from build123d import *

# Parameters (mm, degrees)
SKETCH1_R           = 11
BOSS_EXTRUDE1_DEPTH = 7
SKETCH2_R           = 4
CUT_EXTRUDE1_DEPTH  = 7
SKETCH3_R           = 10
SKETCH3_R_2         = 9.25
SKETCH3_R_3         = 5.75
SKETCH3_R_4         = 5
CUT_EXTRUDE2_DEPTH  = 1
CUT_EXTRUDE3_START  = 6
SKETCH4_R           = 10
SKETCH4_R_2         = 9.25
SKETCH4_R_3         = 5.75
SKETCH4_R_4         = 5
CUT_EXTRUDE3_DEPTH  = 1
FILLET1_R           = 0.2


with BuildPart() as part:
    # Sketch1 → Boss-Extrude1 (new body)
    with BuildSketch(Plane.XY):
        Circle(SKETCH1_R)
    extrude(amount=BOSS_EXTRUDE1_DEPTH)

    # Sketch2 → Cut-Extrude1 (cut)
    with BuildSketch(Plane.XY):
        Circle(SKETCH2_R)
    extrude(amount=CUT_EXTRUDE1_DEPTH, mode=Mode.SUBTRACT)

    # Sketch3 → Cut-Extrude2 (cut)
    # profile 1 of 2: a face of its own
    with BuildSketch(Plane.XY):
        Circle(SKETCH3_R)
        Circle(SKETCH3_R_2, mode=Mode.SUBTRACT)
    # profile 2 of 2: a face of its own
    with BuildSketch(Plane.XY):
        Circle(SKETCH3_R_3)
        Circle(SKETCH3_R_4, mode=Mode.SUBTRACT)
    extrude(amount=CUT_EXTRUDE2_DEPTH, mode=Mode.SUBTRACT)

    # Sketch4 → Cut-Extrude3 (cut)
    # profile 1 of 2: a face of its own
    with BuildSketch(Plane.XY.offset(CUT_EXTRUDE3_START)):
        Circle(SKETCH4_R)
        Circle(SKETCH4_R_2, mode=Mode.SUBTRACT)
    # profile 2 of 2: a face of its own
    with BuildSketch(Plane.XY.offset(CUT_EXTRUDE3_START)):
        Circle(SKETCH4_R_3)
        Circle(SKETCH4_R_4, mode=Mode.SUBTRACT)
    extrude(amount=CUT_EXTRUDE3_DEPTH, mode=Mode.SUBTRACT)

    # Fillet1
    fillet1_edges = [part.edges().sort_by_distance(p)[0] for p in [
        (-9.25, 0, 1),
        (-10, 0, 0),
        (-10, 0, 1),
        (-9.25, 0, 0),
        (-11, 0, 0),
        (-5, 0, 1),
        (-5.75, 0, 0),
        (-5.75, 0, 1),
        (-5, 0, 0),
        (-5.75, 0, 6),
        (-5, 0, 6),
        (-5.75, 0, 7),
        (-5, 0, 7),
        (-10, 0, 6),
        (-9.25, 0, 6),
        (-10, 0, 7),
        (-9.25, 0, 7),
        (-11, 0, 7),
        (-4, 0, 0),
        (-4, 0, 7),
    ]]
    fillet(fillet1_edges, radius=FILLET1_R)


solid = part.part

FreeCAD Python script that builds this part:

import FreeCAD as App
import Part
import Sketcher
from FreeCAD import Vector
Q = App.Units.Quantity


def edges_at(feature, points):
    """Names of the edges that pass closest to the given points."""
    edges = feature.Shape.Edges
    near = lambda p: min(range(len(edges)), key=lambda i: edges[i].distToShape(Part.Vertex(*p))[0])
    return sorted({f"Edge{near(p) + 1}" for p in points})

doc = App.newDocument("Part")
params = doc.addObject("Spreadsheet::Sheet", "Params")
for row, (alias, value) in enumerate([
    ("sketch1_diameter", "22 mm"),
    ("pad1_length", "7 mm"),
    ("sketch2_diameter", "8 mm"),
    ("pocket1_length", "7 mm"),
    ("sketch3_diameter", "20 mm"),
    ("sketch3_diameter2", "10 mm"),
    ("sketch3_diameter3", "18.5 mm"),
    ("sketch3_diameter4", "11.5 mm"),
    ("pocket2_length", "1 mm"),
    ("sketch4_diameter", "20 mm"),
    ("sketch4_diameter2", "10 mm"),
    ("sketch4_diameter3", "18.5 mm"),
    ("sketch4_diameter4", "11.5 mm"),
    ("pocket3_length", "1 mm"),
    ("fillet_radius", "0.2 mm"),
], start=1):
    params.set(f"A{row}", alias)
    params.set(f"B{row}", "=" + value)
    params.setAlias(f"B{row}", alias)

body = doc.addObject("PartDesign::Body", "Body")

# Sketch on XY plane
sketch1 = body.newObject("Sketcher::SketchObject", "Sketch")
sketch1.AttachmentSupport = (doc.getObject("XY_Plane"), [""])
sketch1.MapMode = "FlatFace"
sketch1.addGeometry(Part.Circle(Vector(0, 0, 0), Vector(0, 0, 1), 11), False)
sketch1.addConstraint([
    Sketcher.Constraint("Coincident", 0, 3, -1, 1),
    Sketcher.Constraint("Diameter", 0, Q("22 mm")),
])
sketch1.setExpression("Constraints[1]", "Params.sketch1_diameter")
pad1 = body.newObject("PartDesign::Pad", "Pad")
pad1.Profile = sketch1
pad1.setExpression("Length", "Params.pad1_length")

# Sketch on XY plane
sketch2 = body.newObject("Sketcher::SketchObject", "Sketch001")
sketch2.AttachmentSupport = (doc.getObject("XY_Plane"), [""])
sketch2.MapMode = "FlatFace"
sketch2.addGeometry(Part.Circle(Vector(0, 0, 0), Vector(0, 0, 1), 4), False)
sketch2.addConstraint([
    Sketcher.Constraint("Coincident", 0, 3, -1, 1),
    Sketcher.Constraint("Diameter", 0, Q("8 mm")),
])
sketch2.setExpression("Constraints[1]", "Params.sketch2_diameter")
pocket1 = body.newObject("PartDesign::Pocket", "Pocket")
pocket1.Profile = sketch2
pocket1.setExpression("Length", "Params.pocket1_length")
pocket1.Reversed = True

# Sketch on XY plane
sketch3 = body.newObject("Sketcher::SketchObject", "Sketch002")
sketch3.AttachmentSupport = (doc.getObject("XY_Plane"), [""])
sketch3.MapMode = "FlatFace"
sketch3.addGeometry([
    Part.Circle(Vector(0, 0, 0), Vector(0, 0, 1), 10),
    Part.Circle(Vector(0, 0, 0), Vector(0, 0, 1), 9),
    Part.Circle(Vector(0, 0, 0), Vector(0, 0, 1), 6),
    Part.Circle(Vector(0, 0, 0), Vector(0, 0, 1), 5),
], False)
sketch3.addConstraint([
    Sketcher.Constraint("Coincident", 0, 3, -1, 1),
    Sketcher.Constraint("Coincident", 1, 3, -1, 1),
    Sketcher.Constraint("Coincident", 2, 3, -1, 1),
    Sketcher.Constraint("Coincident", 3, 3, -1, 1),
    Sketcher.Constraint("Diameter", 0, Q("20 mm")),
    Sketcher.Constraint("Diameter", 3, Q("10 mm")),
    Sketcher.Constraint("Diameter", 1, Q("18.5 mm")),
    Sketcher.Constraint("Diameter", 2, Q("11.5 mm")),
])
sketch3.setExpression("Constraints[4]", "Params.sketch3_diameter")
sketch3.setExpression("Constraints[5]", "Params.sketch3_diameter2")
sketch3.setExpression("Constraints[6]", "Params.sketch3_diameter3")
sketch3.setExpression("Constraints[7]", "Params.sketch3_diameter4")
pocket2 = body.newObject("PartDesign::Pocket", "Pocket001")
pocket2.Profile = sketch3
pocket2.setExpression("Length", "Params.pocket2_length")
pocket2.Reversed = True

# Sketch on XY plane
sketch4 = body.newObject("Sketcher::SketchObject", "Sketch003")
sketch4.AttachmentSupport = (doc.getObject("XY_Plane"), [""])
sketch4.MapMode = "FlatFace"
sketch4.AttachmentOffset = App.Placement(Vector(0, 0, 6), App.Rotation())
sketch4.addGeometry([
    Part.Circle(Vector(0, 0, 0), Vector(0, 0, 1), 10),
    Part.Circle(Vector(0, 0, 0), Vector(0, 0, 1), 9),
    Part.Circle(Vector(0, 0, 0), Vector(0, 0, 1), 6),
    Part.Circle(Vector(0, 0, 0), Vector(0, 0, 1), 5),
], False)
sketch4.addConstraint([
    Sketcher.Constraint("Coincident", 0, 3, -1, 1),
    Sketcher.Constraint("Coincident", 1, 3, -1, 1),
    Sketcher.Constraint("Coincident", 2, 3, -1, 1),
    Sketcher.Constraint("Coincident", 3, 3, -1, 1),
    Sketcher.Constraint("Diameter", 0, Q("20 mm")),
    Sketcher.Constraint("Diameter", 3, Q("10 mm")),
    Sketcher.Constraint("Diameter", 1, Q("18.5 mm")),
    Sketcher.Constraint("Diameter", 2, Q("11.5 mm")),
])
sketch4.setExpression("Constraints[4]", "Params.sketch4_diameter")
sketch4.setExpression("Constraints[5]", "Params.sketch4_diameter2")
sketch4.setExpression("Constraints[6]", "Params.sketch4_diameter3")
sketch4.setExpression("Constraints[7]", "Params.sketch4_diameter4")
pocket3 = body.newObject("PartDesign::Pocket", "Pocket002")
pocket3.Profile = sketch4
pocket3.setExpression("Length", "Params.pocket3_length")
pocket3.Reversed = True
doc.recompute()

fillet = body.newObject("PartDesign::Fillet", "Fillet")
fillet.Base = (pocket3, edges_at(pocket3, [
    (-9.25, 0, 1),
    (-10, 0, 0),
    (-10, 0, 1),
    (-9.25, 0, 0),
    (-11, 0, 0),
    (-5, 0, 1),
    (-5.75, 0, 0),
    (-5.75, 0, 1),
    (-5, 0, 0),
    (-5.75, 0, 6),
    (-5, 0, 6),
    (-5.75, 0, 7),
    (-5, 0, 7),
    (-10, 0, 6),
    (-9.25, 0, 6),
    (-10, 0, 7),
    (-9.25, 0, 7),
    (-11, 0, 7),
    (-4, 0, 0),
    (-4, 0, 7),
]))
fillet.setExpression("Radius", "Params.fillet_radius")

doc.recompute()
